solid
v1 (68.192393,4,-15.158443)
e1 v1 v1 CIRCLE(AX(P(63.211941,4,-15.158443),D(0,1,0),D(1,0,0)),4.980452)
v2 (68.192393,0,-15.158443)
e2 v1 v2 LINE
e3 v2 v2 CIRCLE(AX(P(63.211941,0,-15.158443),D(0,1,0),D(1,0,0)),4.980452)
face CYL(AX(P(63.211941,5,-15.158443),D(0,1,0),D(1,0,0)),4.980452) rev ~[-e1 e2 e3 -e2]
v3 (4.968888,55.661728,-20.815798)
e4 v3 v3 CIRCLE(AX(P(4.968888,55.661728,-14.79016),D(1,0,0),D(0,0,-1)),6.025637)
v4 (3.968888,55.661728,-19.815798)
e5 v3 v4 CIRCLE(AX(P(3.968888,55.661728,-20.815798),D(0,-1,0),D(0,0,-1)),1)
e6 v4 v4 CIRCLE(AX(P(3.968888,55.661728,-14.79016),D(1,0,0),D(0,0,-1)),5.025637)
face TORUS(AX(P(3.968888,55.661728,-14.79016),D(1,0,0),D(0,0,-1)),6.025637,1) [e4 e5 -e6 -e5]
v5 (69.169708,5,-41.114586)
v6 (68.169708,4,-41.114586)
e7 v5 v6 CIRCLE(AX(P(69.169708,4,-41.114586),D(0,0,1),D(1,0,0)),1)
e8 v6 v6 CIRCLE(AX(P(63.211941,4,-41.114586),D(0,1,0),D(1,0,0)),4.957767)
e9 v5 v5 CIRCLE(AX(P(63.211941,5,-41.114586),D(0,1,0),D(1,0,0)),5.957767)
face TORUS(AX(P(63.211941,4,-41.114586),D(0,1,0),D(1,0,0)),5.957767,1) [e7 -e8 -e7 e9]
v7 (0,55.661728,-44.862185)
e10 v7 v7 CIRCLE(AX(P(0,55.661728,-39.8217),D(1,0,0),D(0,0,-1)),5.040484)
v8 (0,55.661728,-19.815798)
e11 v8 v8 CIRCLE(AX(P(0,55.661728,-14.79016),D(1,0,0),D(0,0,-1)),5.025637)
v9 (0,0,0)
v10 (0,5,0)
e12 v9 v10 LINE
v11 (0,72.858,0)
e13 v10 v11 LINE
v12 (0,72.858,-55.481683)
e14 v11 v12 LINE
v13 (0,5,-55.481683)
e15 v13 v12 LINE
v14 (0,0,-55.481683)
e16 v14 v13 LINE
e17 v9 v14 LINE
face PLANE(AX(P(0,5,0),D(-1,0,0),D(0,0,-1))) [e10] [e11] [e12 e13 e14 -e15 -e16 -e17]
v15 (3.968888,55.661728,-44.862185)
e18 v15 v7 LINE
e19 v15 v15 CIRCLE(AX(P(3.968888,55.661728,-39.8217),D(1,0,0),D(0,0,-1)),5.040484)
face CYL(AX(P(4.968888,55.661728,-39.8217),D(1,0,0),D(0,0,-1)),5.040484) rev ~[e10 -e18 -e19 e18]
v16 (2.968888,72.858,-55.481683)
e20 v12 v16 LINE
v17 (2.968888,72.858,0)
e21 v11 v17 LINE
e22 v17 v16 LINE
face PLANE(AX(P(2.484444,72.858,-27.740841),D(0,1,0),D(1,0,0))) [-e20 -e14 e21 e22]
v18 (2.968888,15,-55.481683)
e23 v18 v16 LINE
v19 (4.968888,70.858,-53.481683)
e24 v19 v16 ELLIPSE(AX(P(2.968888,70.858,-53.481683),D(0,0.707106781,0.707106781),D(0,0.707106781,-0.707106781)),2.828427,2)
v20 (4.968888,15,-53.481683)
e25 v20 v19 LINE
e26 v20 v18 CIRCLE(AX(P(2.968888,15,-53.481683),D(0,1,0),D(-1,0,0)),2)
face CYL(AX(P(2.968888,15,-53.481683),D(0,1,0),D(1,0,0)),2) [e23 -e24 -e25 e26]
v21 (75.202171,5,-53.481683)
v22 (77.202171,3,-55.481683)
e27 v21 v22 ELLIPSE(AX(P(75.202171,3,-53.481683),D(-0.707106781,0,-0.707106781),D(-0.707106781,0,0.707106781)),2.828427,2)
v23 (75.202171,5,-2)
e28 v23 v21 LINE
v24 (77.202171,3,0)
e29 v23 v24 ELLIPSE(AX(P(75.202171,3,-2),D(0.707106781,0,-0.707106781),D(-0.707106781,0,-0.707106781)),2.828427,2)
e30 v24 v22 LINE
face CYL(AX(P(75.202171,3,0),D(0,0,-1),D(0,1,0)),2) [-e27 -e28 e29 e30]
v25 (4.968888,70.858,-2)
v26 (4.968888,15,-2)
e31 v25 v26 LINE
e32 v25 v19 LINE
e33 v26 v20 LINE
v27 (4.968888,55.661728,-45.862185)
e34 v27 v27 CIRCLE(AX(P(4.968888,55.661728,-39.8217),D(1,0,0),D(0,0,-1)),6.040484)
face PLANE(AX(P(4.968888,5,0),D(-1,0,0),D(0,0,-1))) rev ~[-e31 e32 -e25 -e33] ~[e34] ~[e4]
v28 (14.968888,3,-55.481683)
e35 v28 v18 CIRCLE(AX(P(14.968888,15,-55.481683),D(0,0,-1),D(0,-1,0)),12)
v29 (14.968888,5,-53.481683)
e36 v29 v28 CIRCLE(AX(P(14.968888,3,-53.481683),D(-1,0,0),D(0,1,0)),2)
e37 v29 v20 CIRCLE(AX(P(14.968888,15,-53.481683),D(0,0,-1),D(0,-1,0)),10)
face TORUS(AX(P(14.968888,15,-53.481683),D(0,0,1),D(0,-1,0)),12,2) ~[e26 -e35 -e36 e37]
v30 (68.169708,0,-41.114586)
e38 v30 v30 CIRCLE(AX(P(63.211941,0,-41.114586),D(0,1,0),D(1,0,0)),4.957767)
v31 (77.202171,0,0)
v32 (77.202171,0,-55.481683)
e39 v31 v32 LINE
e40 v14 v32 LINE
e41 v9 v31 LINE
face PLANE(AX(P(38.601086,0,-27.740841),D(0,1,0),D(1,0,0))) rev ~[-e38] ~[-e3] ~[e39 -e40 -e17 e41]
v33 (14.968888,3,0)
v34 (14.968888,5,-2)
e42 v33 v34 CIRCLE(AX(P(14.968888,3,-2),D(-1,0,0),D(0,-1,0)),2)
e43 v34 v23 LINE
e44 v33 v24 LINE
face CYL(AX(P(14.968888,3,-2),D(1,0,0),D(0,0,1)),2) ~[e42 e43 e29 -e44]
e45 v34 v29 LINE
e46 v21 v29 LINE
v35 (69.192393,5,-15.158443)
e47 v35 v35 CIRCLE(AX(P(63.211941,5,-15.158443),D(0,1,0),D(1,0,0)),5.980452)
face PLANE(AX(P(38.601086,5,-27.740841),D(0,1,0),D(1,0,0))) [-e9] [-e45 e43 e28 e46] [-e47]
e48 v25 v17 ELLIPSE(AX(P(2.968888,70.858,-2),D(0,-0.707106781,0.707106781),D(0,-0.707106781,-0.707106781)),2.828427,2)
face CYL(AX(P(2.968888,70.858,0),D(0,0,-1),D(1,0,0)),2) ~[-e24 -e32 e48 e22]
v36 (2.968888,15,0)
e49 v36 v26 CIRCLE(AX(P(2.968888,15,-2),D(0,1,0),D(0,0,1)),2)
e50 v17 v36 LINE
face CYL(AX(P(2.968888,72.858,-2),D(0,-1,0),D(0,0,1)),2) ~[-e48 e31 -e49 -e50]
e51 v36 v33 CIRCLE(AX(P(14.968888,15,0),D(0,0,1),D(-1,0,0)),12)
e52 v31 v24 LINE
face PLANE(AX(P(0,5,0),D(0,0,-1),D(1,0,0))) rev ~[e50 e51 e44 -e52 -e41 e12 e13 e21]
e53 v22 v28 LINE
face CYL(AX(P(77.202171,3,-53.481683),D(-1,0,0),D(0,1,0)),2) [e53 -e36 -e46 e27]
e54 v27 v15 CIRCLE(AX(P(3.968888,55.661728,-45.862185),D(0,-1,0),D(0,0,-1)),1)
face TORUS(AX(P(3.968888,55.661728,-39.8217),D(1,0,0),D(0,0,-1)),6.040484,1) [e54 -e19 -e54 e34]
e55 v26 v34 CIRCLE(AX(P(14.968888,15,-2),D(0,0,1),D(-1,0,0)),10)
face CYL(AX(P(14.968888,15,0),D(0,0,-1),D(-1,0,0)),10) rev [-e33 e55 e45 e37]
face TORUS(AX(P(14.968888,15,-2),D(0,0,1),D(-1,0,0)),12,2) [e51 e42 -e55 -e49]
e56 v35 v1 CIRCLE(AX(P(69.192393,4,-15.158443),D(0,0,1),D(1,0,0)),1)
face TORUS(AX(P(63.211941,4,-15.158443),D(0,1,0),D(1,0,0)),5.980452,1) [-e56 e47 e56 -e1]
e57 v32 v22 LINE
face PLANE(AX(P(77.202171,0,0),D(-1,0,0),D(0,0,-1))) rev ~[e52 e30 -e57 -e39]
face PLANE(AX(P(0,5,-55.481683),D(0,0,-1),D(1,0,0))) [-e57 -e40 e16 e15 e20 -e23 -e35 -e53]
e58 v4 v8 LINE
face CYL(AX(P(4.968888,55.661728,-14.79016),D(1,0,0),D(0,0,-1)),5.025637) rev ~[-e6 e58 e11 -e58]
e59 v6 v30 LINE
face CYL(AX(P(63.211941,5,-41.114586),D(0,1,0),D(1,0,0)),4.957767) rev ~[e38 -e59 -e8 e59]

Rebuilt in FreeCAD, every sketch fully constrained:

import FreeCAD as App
import Part
import Sketcher
from FreeCAD import Vector
Q = App.Units.Quantity


def edges_at(feature, points):
    """Names of the edges that pass closest to the given points."""
    edges = feature.Shape.Edges
    near = lambda p: min(range(len(edges)), key=lambda i: edges[i].distToShape(Part.Vertex(*p))[0])
    return sorted({f"Edge{near(p) + 1}" for p in points})

doc = App.newDocument("Part")
body = doc.addObject("PartDesign::Body", "Body")

# Sketch on XZ plane
sketch1 = body.newObject("Sketcher::SketchObject", "Sketch")
sketch1.AttachmentSupport = (doc.getObject("XZ_Plane"), [""])
sketch1.MapMode = "FlatFace"
sketch1.addGeometry(Part.LineSegment(Vector(0, -55, 0), Vector(0, 0, 0)), False)
sketch1.addGeometry(Part.LineSegment(Vector(0, 0, 0), Vector(77, 0, 0)), False)
sketch1.addGeometry(Part.LineSegment(Vector(77, 0, 0), Vector(77, -55, 0)), False)
sketch1.addGeometry(Part.LineSegment(Vector(77, -55, 0), Vector(0, -55, 0)), False)
sketch1.addConstraint(Sketcher.Constraint("Coincident", 0, 2, 1, 1))
sketch1.addConstraint(Sketcher.Constraint("Coincident", 1, 2, 2, 1))
sketch1.addConstraint(Sketcher.Constraint("Coincident", 2, 2, 3, 1))
sketch1.addConstraint(Sketcher.Constraint("Coincident", 3, 2, 0, 1))
sketch1.addConstraint(Sketcher.Constraint("Vertical", 0))
sketch1.addConstraint(Sketcher.Constraint("Horizontal", 1))
sketch1.addConstraint(Sketcher.Constraint("Vertical", 2))
sketch1.addConstraint(Sketcher.Constraint("Horizontal", 3))
sketch1.addConstraint(Sketcher.Constraint("Coincident", 0, 2, -1, 1))
sketch1.addConstraint(Sketcher.Constraint("DistanceX", 1, 1, 1, 2, Q("77.202171 mm")))
sketch1.addConstraint(Sketcher.Constraint("DistanceY", 0, 1, 0, 2, Q("55.481683 mm")))
pad1 = body.newObject("PartDesign::Pad", "Pad")
pad1.Profile = sketch1
pad1.Length = 5
pad1.Reversed = True

# Sketch on XZ plane
sketch2 = body.newObject("Sketcher::SketchObject", "Sketch001")
sketch2.AttachmentSupport = (doc.getObject("XZ_Plane"), [""])
sketch2.MapMode = "FlatFace"
sketch2.AttachmentOffset = App.Placement(Vector(0, 0, -5), App.Rotation())
sketch2.addGeometry(Part.LineSegment(Vector(0, -55.5, 0), Vector(0, 0, 0)), False)
sketch2.addGeometry(Part.LineSegment(Vector(0, 0, 0), Vector(5, 0, 0)), False)
sketch2.addGeometry(Part.LineSegment(Vector(5, 0, 0), Vector(5, -55.5, 0)), False)
sketch2.addGeometry(Part.LineSegment(Vector(5, -55.5, 0), Vector(0, -55.5, 0)), False)
sketch2.addConstraint(Sketcher.Constraint("Coincident", 0, 2, 1, 1))
sketch2.addConstraint(Sketcher.Constraint("Coincident", 1, 2, 2, 1))
sketch2.addConstraint(Sketcher.Constraint("Coincident", 2, 2, 3, 1))
sketch2.addConstraint(Sketcher.Constraint("Coincident", 3, 2, 0, 1))
sketch2.addConstraint(Sketcher.Constraint("Vertical", 0))
sketch2.addConstraint(Sketcher.Constraint("Horizontal", 1))
sketch2.addConstraint(Sketcher.Constraint("Vertical", 2))
sketch2.addConstraint(Sketcher.Constraint("Horizontal", 3))
sketch2.addConstraint(Sketcher.Constraint("Coincident", 0, 2, -1, 1))
sketch2.addConstraint(Sketcher.Constraint("DistanceX", 1, 1, 1, 2, Q("4.968888 mm")))
sketch2.addConstraint(Sketcher.Constraint("DistanceY", 0, 1, 0, 2, Q("55.481683 mm")))
pad2 = body.newObject("PartDesign::Pad", "Pad001")
pad2.Profile = sketch2
pad2.Length = 67.858
pad2.Reversed = True

# Sketch on XZ plane
sketch3 = body.newObject("Sketcher::SketchObject", "Sketch002")
sketch3.AttachmentSupport = (doc.getObject("XZ_Plane"), [""])
sketch3.MapMode = "FlatFace"
sketch3.AttachmentOffset = App.Placement(Vector(0, 0, -5), App.Rotation())
sketch3.addGeometry(Part.Circle(Vector(63.2, -41.1, 0), Vector(0, 0, 1), 5), False)
sketch3.addGeometry(Part.Circle(Vector(63.2, -15.2, 0), Vector(0, 0, 1), 5), False)
sketch3.addConstraint(Sketcher.Constraint("Vertical", 0, 3, 1, 3))
sketch3.addConstraint(Sketcher.Constraint("Diameter", 0, Q("9.915535 mm")))
sketch3.addConstraint(Sketcher.Constraint("Diameter", 1, Q("9.960903 mm")))
sketch3.addConstraint(Sketcher.Constraint("DistanceX", -1, 1, 0, 3, Q("63.211941 mm")))
sketch3.addConstraint(Sketcher.Constraint("DistanceY", 0, 3, -1, 1, Q("41.114586 mm")))
sketch3.addConstraint(Sketcher.Constraint("DistanceY", 1, 3, -1, 1, Q("15.158443 mm")))
pocket1 = body.newObject("PartDesign::Pocket", "Pocket")
pocket1.Profile = sketch3
pocket1.Length = 67.858
pocket1.Reversed = True

# Sketch on YZ plane
sketch4 = body.newObject("Sketcher::SketchObject", "Sketch003")
sketch4.AttachmentSupport = (doc.getObject("YZ_Plane"), [""])
sketch4.MapMode = "FlatFace"
sketch4.AttachmentOffset = App.Placement(Vector(0, 0, 4.968888), App.Rotation())
sketch4.addGeometry(Part.Circle(Vector(56, -15, 0), Vector(0, 0, 1), 5), False)
sketch4.addGeometry(Part.Circle(Vector(56, -40, 0), Vector(0, 0, 1), 5), False)
sketch4.addConstraint(Sketcher.Constraint("Vertical", 0, 3, 1, 3))
sketch4.addConstraint(Sketcher.Constraint("Diameter", 1, Q("10.080968 mm")))
sketch4.addConstraint(Sketcher.Constraint("Diameter", 0, Q("10.051275 mm")))
sketch4.addConstraint(Sketcher.Constraint("DistanceY", 1, 3, -1, 1, Q("39.8217 mm")))
sketch4.addConstraint(Sketcher.Constraint("DistanceY", 0, 3, -1, 1, Q("14.79016 mm")))
sketch4.addConstraint(Sketcher.Constraint("DistanceX", -1, 1, 0, 3, Q("55.661728 mm")))
pocket2 = body.newObject("PartDesign::Pocket", "Pocket001")
pocket2.Profile = sketch4
pocket2.Length = 67.858
doc.recompute()

fillet = body.newObject("PartDesign::Fillet", "Fillet")
fillet.Base = (pocket2, edges_at(pocket2, [(4.969, 5, -27.741)]))
fillet.Radius = 10
doc.recompute()

fillet2 = body.newObject("PartDesign::Fillet", "Fillet001")
fillet2.Base = (fillet, edges_at(fillet, [
    (4.969, 72.858, -27.741),
    (4.969, 43.929, -55.482),
    (7.898, 7.929, -55.482),
    (46.086, 5, -55.482),
    (77.202, 5, -27.741),
    (46.086, 5, 0),
    (7.898, 7.929, 0),
    (4.969, 43.929, 0),
]))
fillet2.Radius = 2
doc.recompute()

fillet3 = body.newObject("PartDesign::Fillet", "Fillet002")
fillet3.Base = (fillet2, edges_at(fillet2, [
    (58.254, 5, -41.115),
    (58.231, 5, -15.158),
    (4.969, 55.662, -9.765),
    (4.969, 55.662, -34.781),
]))
fillet3.Radius = 1

doc.recompute()
